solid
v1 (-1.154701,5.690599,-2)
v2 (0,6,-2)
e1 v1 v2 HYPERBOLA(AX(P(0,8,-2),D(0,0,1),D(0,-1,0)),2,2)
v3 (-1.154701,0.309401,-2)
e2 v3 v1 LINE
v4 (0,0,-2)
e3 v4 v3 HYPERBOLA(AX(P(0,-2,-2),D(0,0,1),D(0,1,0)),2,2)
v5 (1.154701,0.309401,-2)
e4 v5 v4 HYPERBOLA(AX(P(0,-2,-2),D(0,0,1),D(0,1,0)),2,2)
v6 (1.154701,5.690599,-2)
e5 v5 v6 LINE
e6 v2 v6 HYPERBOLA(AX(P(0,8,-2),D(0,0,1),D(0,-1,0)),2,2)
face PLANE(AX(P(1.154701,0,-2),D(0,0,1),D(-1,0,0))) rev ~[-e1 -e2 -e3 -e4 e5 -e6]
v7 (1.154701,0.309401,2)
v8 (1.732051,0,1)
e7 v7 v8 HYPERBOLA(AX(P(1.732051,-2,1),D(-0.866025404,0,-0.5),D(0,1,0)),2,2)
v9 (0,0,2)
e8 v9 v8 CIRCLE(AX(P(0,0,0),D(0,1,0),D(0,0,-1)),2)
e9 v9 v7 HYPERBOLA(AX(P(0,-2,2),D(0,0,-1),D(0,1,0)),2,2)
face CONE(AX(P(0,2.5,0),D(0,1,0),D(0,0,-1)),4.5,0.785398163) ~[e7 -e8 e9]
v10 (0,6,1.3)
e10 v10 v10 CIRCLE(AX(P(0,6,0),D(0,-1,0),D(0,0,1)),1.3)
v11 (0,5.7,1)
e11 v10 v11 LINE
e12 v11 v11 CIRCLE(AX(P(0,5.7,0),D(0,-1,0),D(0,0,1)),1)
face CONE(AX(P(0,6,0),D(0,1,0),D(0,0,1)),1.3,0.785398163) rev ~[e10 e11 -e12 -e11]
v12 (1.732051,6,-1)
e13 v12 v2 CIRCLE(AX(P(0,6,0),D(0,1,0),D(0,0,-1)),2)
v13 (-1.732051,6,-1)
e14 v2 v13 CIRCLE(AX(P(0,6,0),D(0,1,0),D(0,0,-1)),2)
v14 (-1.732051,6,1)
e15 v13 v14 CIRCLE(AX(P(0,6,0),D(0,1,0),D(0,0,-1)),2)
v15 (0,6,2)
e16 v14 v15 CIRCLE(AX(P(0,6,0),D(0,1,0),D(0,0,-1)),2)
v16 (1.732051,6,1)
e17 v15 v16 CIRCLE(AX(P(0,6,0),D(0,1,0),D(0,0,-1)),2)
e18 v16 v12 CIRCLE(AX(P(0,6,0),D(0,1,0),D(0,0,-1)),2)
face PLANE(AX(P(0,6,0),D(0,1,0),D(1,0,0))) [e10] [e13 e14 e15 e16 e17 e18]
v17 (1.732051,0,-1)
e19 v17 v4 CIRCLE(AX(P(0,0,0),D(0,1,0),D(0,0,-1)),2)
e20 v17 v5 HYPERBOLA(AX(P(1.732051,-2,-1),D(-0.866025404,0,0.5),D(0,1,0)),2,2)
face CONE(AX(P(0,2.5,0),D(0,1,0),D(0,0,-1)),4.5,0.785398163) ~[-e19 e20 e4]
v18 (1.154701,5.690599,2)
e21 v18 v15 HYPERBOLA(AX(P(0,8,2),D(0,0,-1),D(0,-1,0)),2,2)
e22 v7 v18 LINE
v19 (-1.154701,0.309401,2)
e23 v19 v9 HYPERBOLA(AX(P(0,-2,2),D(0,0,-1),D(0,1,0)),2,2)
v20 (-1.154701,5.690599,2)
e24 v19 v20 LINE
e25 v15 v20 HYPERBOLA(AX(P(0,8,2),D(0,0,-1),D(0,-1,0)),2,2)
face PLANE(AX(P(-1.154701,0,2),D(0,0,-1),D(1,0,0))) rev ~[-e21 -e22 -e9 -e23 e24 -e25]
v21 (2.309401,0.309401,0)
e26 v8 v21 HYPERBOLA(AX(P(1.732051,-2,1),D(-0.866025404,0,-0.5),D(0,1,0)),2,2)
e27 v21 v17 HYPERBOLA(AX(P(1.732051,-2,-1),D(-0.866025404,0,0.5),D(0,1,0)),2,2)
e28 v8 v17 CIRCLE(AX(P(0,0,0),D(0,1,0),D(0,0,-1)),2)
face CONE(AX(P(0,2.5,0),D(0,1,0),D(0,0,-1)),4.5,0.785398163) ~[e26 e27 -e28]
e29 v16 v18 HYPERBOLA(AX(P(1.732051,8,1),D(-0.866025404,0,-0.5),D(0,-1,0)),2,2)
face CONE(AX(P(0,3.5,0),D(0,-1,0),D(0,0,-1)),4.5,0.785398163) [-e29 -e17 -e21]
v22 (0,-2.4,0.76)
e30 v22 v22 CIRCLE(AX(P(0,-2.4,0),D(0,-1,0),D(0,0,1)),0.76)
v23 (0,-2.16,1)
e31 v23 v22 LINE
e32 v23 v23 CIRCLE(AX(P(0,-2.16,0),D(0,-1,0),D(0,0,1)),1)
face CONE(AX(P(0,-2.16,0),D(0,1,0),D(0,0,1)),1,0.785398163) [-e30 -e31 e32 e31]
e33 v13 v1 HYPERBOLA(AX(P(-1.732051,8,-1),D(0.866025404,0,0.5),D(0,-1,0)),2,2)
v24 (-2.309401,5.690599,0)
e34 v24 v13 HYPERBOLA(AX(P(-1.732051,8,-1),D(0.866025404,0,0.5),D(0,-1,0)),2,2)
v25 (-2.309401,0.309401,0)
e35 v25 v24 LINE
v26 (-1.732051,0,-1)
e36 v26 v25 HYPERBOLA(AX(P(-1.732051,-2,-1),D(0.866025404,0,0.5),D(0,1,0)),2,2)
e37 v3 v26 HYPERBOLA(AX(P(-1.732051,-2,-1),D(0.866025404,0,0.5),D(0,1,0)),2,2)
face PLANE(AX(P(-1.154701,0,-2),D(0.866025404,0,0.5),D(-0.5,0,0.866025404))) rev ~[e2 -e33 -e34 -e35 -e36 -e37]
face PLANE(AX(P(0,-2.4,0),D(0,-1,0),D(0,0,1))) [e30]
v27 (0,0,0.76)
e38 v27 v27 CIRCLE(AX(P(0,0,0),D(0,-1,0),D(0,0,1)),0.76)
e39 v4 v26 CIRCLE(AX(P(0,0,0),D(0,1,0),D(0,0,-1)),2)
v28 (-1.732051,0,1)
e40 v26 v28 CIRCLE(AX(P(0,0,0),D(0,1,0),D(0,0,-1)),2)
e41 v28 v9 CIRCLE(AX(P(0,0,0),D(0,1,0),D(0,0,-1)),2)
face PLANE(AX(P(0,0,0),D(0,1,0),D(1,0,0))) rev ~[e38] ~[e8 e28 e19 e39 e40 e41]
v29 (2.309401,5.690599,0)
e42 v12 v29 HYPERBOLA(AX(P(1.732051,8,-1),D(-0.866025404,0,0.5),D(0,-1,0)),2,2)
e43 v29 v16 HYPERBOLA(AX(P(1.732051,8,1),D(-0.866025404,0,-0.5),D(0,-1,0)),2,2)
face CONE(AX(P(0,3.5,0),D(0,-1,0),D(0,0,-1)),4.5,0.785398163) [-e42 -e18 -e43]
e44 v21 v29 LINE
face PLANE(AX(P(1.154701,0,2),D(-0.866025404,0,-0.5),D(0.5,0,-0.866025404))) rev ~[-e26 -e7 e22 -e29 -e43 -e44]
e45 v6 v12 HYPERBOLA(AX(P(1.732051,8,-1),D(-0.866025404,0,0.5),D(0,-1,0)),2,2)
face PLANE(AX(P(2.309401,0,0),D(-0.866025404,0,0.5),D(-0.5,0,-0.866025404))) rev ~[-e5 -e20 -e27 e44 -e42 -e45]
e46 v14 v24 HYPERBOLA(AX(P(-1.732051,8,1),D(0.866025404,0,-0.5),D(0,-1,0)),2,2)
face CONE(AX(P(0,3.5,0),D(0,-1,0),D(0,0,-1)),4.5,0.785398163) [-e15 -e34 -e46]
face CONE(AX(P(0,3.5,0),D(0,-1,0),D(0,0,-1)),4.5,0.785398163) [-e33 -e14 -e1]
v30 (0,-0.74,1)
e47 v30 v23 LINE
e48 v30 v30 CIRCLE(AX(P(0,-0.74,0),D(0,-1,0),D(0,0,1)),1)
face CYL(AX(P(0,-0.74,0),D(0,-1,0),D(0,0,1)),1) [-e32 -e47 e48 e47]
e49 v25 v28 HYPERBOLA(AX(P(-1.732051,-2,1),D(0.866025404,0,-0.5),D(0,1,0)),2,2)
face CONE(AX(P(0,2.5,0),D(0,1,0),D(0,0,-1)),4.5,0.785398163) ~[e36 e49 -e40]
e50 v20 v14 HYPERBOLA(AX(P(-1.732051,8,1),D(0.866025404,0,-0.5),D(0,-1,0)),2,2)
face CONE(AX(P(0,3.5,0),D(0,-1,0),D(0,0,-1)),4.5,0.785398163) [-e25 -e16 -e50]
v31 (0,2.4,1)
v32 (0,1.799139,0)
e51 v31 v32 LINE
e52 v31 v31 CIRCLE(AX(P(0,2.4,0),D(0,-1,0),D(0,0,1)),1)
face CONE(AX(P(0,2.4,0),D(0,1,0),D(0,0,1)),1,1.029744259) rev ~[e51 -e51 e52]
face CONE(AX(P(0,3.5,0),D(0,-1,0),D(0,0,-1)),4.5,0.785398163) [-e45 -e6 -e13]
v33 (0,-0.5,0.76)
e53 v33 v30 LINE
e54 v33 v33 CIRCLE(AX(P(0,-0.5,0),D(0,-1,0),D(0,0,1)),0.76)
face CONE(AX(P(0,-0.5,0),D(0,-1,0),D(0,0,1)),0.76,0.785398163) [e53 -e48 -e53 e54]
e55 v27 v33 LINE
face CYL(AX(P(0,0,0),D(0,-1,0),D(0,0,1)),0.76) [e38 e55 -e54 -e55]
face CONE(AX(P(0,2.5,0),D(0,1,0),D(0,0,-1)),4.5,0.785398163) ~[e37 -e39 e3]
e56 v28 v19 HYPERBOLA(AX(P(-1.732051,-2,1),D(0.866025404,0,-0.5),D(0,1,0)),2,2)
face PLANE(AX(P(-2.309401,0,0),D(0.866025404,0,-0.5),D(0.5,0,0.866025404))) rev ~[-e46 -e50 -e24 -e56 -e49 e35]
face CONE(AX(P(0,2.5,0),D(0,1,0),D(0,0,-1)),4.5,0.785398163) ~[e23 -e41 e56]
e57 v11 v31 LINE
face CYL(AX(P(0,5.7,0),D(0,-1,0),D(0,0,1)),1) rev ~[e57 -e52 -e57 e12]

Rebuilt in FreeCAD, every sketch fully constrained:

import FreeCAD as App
import Part
import Sketcher
from FreeCAD import Vector
Q = App.Units.Quantity

doc = App.newDocument("Part")
body = doc.addObject("PartDesign::Body", "Body")

# Sketch on XZ plane
sketch1 = body.newObject("Sketcher::SketchObject", "Sketch")
sketch1.AttachmentSupport = (doc.getObject("XZ_Plane"), [""])
sketch1.MapMode = "FlatFace"
sketch1.addGeometry(Part.LineSegment(Vector(1.2, -2, 0), Vector(-1.2, -2, 0)), False)
sketch1.addGeometry(Part.LineSegment(Vector(-1.2, -2, 0), Vector(-2.3, 0, 0)), False)
sketch1.addGeometry(Part.LineSegment(Vector(-2.3, 0, 0), Vector(-1.2, 2, 0)), False)
sketch1.addGeometry(Part.LineSegment(Vector(-1.2, 2, 0), Vector(1.2, 2, 0)), False)
sketch1.addGeometry(Part.LineSegment(Vector(1.2, 2, 0), Vector(2.3, 0, 0)), False)
sketch1.addGeometry(Part.LineSegment(Vector(2.3, 0, 0), Vector(1.2, -2, 0)), False)
sketch1.addConstraint(Sketcher.Constraint("Coincident", 0, 2, 1, 1))
sketch1.addConstraint(Sketcher.Constraint("Coincident", 1, 2, 2, 1))
sketch1.addConstraint(Sketcher.Constraint("Coincident", 2, 2, 3, 1))
sketch1.addConstraint(Sketcher.Constraint("Coincident", 3, 2, 4, 1))
sketch1.addConstraint(Sketcher.Constraint("Coincident", 4, 2, 5, 1))
sketch1.addConstraint(Sketcher.Constraint("Coincident", 5, 2, 0, 1))
sketch1.addConstraint(Sketcher.Constraint("Horizontal", 0))
sketch1.addConstraint(Sketcher.Constraint("Horizontal", 3))
sketch1.addConstraint(Sketcher.Constraint("Symmetric", 0, 2, 3, 2, -1, 1))
sketch1.addConstraint(Sketcher.Constraint("Symmetric", 1, 2, 4, 2, -1, 1))
sketch1.addConstraint(Sketcher.Constraint("PointOnObject", 1, 2, -1))
sketch1.addConstraint(Sketcher.Constraint("Parallel", 2, 5))
sketch1.addConstraint(Sketcher.Constraint("Vertical", 0, 2, 2, 2))
sketch1.addConstraint(Sketcher.Constraint("Angle", 1, Q("120 deg")))
sketch1.addConstraint(Sketcher.Constraint("DistanceY", 0, 2, -1, 1, Q("2 mm")))
sketch1.addConstraint(Sketcher.Constraint("DistanceX", 0, 2, 0, 1, Q("2.309401 mm")))
pad1 = body.newObject("PartDesign::Pad", "Pad")
pad1.Profile = sketch1
pad1.Length = 6
pad1.Reversed = True

# Sketch on YZ plane
sketch2 = body.newObject("Sketcher::SketchObject", "Sketch001")
sketch2.AttachmentSupport = (doc.getObject("YZ_Plane"), [""])
sketch2.MapMode = "FlatFace"
sketch2.addGeometry(Part.LineSegment(Vector(-0.5, -0.76, 0), Vector(0, -0.76, 0)), False)
sketch2.addGeometry(Part.LineSegment(Vector(0, -0.76, 0), Vector(0, 0, 0)), False)
sketch2.addGeometry(Part.LineSegment(Vector(0, 0, 0), Vector(-2.4, 0, 0)), False)
sketch2.addGeometry(Part.LineSegment(Vector(-2.4, 0, 0), Vector(-2.4, -0.76, 0)), False)
sketch2.addGeometry(Part.LineSegment(Vector(-2.4, -0.76, 0), Vector(-2.16, -1, 0)), False)
sketch2.addGeometry(Part.LineSegment(Vector(-2.16, -1, 0), Vector(-0.74, -1, 0)), False)
sketch2.addGeometry(Part.LineSegment(Vector(-0.74, -1, 0), Vector(-0.5, -0.76, 0)), False)
sketch2.addConstraint(Sketcher.Constraint("Coincident", 0, 2, 1, 1))
sketch2.addConstraint(Sketcher.Constraint("Coincident", 1, 2, 2, 1))
sketch2.addConstraint(Sketcher.Constraint("Coincident", 2, 2, 3, 1))
sketch2.addConstraint(Sketcher.Constraint("Coincident", 3, 2, 4, 1))
sketch2.addConstraint(Sketcher.Constraint("Coincident", 4, 2, 5, 1))
sketch2.addConstraint(Sketcher.Constraint("Coincident", 5, 2, 6, 1))
sketch2.addConstraint(Sketcher.Constraint("Coincident", 6, 2, 0, 1))
sketch2.addConstraint(Sketcher.Constraint("Horizontal", 0))
sketch2.addConstraint(Sketcher.Constraint("Vertical", 1))
sketch2.addConstraint(Sketcher.Constraint("Horizontal", 2))
sketch2.addConstraint(Sketcher.Constraint("Vertical", 3))
sketch2.addConstraint(Sketcher.Constraint("Horizontal", 5))
sketch2.addConstraint(Sketcher.Constraint("Coincident", 1, 2, -1, 1))
sketch2.addConstraint(Sketcher.Constraint("Perpendicular", 4, 6))
sketch2.addConstraint(Sketcher.Constraint("Horizontal", 0, 2, 3, 2))
sketch2.addConstraint(Sketcher.Constraint("Equal", 4, 6))
sketch2.addConstraint(Sketcher.Constraint("DistanceX", 0, 1, 0, 2, Q("0.5 mm")))
sketch2.addConstraint(Sketcher.Constraint("DistanceX", 2, 2, 2, 1, Q("2.4 mm")))
sketch2.addConstraint(Sketcher.Constraint("DistanceY", 4, 2, -1, 1, Q("1 mm")))
sketch2.addConstraint(Sketcher.Constraint("DistanceX", 5, 1, 5, 2, Q("1.42 mm")))
revolution = body.newObject("PartDesign::Revolution", "Revolution")
revolution.Profile = sketch2
revolution.ReferenceAxis = (sketch2, ["H_Axis"])
revolution.Angle = 360

# Sketch on YZ plane
sketch3 = body.newObject("Sketcher::SketchObject", "Sketch002")
sketch3.AttachmentSupport = (doc.getObject("YZ_Plane"), [""])
sketch3.MapMode = "FlatFace"
sketch3.addGeometry(Part.LineSegment(Vector(5.7, -1, 0), Vector(6, -1.3, 0)), False)
sketch3.addGeometry(Part.LineSegment(Vector(6, -1.3, 0), Vector(6, 0, 0)), False)
sketch3.addGeometry(Part.LineSegment(Vector(6, 0, 0), Vector(1.8, 0, 0)), False)
sketch3.addGeometry(Part.LineSegment(Vector(1.8, 0, 0), Vector(2.4, -1, 0)), False)
sketch3.addGeometry(Part.LineSegment(Vector(2.4, -1, 0), Vector(5.7, -1, 0)), False)
sketch3.addConstraint(Sketcher.Constraint("Coincident", 0, 2, 1, 1))
sketch3.addConstraint(Sketcher.Constraint("Coincident", 1, 2, 2, 1))
sketch3.addConstraint(Sketcher.Constraint("Coincident", 2, 2, 3, 1))
sketch3.addConstraint(Sketcher.Constraint("Coincident", 3, 2, 4, 1))
sketch3.addConstraint(Sketcher.Constraint("Coincident", 4, 2, 0, 1))
sketch3.addConstraint(Sketcher.Constraint("Vertical", 1))
sketch3.addConstraint(Sketcher.Constraint("Horizontal", 2))
sketch3.addConstraint(Sketcher.Constraint("Horizontal", 4))
sketch3.addConstraint(Sketcher.Constraint("PointOnObject", 1, 2, -1))
sketch3.addConstraint(Sketcher.Constraint("Angle", 0, Q("-45 deg")))
sketch3.addConstraint(Sketcher.Constraint("Angle", 3, Q("-59 deg")))
sketch3.addConstraint(Sketcher.Constraint("DistanceX", 4, 1, 4, 2, Q("3.3 mm")))
sketch3.addConstraint(Sketcher.Constraint("DistanceY", 1, 1, 1, 2, Q("1.3 mm")))
sketch3.addConstraint(Sketcher.Constraint("DistanceX", -1, 1, 0, 2, Q("6 mm")))
sketch3.addConstraint(Sketcher.Constraint("DistanceY", 3, 2, -1, 1, Q("1 mm")))
groove = body.newObject("PartDesign::Groove", "Groove")
groove.Profile = sketch3
groove.ReferenceAxis = (sketch3, ["H_Axis"])
groove.Angle = 360

# Sketch on YZ plane
sketch4 = body.newObject("Sketcher::SketchObject", "Sketch003")
sketch4.AttachmentSupport = (doc.getObject("YZ_Plane"), [""])
sketch4.MapMode = "FlatFace"
sketch4.addGeometry(Part.LineSegment(Vector(6, -4.5, 0), Vector(6, -2, 0)), False)
sketch4.addGeometry(Part.LineSegment(Vector(6, -2, 0), Vector(3.5, -4.5, 0)), False)
sketch4.addGeometry(Part.LineSegment(Vector(3.5, -4.5, 0), Vector(6, -4.5, 0)), False)
sketch4.addGeometry(Part.LineSegment(Vector(0, -2, 0), Vector(0, -4.5, 0)), False)
sketch4.addGeometry(Part.LineSegment(Vector(0, -4.5, 0), Vector(2.5, -4.5, 0)), False)
sketch4.addGeometry(Part.LineSegment(Vector(2.5, -4.5, 0), Vector(0, -2, 0)), False)
sketch4.addConstraint(Sketcher.Constraint("Coincident", 0, 2, 1, 1))
sketch4.addConstraint(Sketcher.Constraint("Coincident", 1, 2, 2, 1))
sketch4.addConstraint(Sketcher.Constraint("Coincident", 2, 2, 0, 1))
sketch4.addConstraint(Sketcher.Constraint("Coincident", 3, 2, 4, 1))
sketch4.addConstraint(Sketcher.Constraint("Coincident", 4, 2, 5, 1))
sketch4.addConstraint(Sketcher.Constraint("Coincident", 5, 2, 3, 1))
sketch4.addConstraint(Sketcher.Constraint("Vertical", 0))
sketch4.addConstraint(Sketcher.Constraint("Horizontal", 2))
sketch4.addConstraint(Sketcher.Constraint("Vertical", 3))
sketch4.addConstraint(Sketcher.Constraint("Horizontal", 4))
sketch4.addConstraint(Sketcher.Constraint("PointOnObject", 3, 2, -2))
sketch4.addConstraint(Sketcher.Constraint("Perpendicular", 1, 5))
sketch4.addConstraint(Sketcher.Constraint("Horizontal", 2, 2, 3, 2))
sketch4.addConstraint(Sketcher.Constraint("Horizontal", 0, 2, 5, 2))
sketch4.addConstraint(Sketcher.Constraint("Equal", 2, 4))
sketch4.addConstraint(Sketcher.Constraint("DistanceX", 2, 1, 2, 2, Q("2.5 mm")))
sketch4.addConstraint(Sketcher.Constraint("DistanceX", -1, 1, 0, 2, Q("6 mm")))
sketch4.addConstraint(Sketcher.Constraint("DistanceY", 0, 2, -1, 1, Q("2 mm")))
groove2 = body.newObject("PartDesign::Groove", "Groove001")
groove2.Profile = sketch4
groove2.ReferenceAxis = (sketch4, ["H_Axis"])
groove2.Angle = 360

doc.recompute()
